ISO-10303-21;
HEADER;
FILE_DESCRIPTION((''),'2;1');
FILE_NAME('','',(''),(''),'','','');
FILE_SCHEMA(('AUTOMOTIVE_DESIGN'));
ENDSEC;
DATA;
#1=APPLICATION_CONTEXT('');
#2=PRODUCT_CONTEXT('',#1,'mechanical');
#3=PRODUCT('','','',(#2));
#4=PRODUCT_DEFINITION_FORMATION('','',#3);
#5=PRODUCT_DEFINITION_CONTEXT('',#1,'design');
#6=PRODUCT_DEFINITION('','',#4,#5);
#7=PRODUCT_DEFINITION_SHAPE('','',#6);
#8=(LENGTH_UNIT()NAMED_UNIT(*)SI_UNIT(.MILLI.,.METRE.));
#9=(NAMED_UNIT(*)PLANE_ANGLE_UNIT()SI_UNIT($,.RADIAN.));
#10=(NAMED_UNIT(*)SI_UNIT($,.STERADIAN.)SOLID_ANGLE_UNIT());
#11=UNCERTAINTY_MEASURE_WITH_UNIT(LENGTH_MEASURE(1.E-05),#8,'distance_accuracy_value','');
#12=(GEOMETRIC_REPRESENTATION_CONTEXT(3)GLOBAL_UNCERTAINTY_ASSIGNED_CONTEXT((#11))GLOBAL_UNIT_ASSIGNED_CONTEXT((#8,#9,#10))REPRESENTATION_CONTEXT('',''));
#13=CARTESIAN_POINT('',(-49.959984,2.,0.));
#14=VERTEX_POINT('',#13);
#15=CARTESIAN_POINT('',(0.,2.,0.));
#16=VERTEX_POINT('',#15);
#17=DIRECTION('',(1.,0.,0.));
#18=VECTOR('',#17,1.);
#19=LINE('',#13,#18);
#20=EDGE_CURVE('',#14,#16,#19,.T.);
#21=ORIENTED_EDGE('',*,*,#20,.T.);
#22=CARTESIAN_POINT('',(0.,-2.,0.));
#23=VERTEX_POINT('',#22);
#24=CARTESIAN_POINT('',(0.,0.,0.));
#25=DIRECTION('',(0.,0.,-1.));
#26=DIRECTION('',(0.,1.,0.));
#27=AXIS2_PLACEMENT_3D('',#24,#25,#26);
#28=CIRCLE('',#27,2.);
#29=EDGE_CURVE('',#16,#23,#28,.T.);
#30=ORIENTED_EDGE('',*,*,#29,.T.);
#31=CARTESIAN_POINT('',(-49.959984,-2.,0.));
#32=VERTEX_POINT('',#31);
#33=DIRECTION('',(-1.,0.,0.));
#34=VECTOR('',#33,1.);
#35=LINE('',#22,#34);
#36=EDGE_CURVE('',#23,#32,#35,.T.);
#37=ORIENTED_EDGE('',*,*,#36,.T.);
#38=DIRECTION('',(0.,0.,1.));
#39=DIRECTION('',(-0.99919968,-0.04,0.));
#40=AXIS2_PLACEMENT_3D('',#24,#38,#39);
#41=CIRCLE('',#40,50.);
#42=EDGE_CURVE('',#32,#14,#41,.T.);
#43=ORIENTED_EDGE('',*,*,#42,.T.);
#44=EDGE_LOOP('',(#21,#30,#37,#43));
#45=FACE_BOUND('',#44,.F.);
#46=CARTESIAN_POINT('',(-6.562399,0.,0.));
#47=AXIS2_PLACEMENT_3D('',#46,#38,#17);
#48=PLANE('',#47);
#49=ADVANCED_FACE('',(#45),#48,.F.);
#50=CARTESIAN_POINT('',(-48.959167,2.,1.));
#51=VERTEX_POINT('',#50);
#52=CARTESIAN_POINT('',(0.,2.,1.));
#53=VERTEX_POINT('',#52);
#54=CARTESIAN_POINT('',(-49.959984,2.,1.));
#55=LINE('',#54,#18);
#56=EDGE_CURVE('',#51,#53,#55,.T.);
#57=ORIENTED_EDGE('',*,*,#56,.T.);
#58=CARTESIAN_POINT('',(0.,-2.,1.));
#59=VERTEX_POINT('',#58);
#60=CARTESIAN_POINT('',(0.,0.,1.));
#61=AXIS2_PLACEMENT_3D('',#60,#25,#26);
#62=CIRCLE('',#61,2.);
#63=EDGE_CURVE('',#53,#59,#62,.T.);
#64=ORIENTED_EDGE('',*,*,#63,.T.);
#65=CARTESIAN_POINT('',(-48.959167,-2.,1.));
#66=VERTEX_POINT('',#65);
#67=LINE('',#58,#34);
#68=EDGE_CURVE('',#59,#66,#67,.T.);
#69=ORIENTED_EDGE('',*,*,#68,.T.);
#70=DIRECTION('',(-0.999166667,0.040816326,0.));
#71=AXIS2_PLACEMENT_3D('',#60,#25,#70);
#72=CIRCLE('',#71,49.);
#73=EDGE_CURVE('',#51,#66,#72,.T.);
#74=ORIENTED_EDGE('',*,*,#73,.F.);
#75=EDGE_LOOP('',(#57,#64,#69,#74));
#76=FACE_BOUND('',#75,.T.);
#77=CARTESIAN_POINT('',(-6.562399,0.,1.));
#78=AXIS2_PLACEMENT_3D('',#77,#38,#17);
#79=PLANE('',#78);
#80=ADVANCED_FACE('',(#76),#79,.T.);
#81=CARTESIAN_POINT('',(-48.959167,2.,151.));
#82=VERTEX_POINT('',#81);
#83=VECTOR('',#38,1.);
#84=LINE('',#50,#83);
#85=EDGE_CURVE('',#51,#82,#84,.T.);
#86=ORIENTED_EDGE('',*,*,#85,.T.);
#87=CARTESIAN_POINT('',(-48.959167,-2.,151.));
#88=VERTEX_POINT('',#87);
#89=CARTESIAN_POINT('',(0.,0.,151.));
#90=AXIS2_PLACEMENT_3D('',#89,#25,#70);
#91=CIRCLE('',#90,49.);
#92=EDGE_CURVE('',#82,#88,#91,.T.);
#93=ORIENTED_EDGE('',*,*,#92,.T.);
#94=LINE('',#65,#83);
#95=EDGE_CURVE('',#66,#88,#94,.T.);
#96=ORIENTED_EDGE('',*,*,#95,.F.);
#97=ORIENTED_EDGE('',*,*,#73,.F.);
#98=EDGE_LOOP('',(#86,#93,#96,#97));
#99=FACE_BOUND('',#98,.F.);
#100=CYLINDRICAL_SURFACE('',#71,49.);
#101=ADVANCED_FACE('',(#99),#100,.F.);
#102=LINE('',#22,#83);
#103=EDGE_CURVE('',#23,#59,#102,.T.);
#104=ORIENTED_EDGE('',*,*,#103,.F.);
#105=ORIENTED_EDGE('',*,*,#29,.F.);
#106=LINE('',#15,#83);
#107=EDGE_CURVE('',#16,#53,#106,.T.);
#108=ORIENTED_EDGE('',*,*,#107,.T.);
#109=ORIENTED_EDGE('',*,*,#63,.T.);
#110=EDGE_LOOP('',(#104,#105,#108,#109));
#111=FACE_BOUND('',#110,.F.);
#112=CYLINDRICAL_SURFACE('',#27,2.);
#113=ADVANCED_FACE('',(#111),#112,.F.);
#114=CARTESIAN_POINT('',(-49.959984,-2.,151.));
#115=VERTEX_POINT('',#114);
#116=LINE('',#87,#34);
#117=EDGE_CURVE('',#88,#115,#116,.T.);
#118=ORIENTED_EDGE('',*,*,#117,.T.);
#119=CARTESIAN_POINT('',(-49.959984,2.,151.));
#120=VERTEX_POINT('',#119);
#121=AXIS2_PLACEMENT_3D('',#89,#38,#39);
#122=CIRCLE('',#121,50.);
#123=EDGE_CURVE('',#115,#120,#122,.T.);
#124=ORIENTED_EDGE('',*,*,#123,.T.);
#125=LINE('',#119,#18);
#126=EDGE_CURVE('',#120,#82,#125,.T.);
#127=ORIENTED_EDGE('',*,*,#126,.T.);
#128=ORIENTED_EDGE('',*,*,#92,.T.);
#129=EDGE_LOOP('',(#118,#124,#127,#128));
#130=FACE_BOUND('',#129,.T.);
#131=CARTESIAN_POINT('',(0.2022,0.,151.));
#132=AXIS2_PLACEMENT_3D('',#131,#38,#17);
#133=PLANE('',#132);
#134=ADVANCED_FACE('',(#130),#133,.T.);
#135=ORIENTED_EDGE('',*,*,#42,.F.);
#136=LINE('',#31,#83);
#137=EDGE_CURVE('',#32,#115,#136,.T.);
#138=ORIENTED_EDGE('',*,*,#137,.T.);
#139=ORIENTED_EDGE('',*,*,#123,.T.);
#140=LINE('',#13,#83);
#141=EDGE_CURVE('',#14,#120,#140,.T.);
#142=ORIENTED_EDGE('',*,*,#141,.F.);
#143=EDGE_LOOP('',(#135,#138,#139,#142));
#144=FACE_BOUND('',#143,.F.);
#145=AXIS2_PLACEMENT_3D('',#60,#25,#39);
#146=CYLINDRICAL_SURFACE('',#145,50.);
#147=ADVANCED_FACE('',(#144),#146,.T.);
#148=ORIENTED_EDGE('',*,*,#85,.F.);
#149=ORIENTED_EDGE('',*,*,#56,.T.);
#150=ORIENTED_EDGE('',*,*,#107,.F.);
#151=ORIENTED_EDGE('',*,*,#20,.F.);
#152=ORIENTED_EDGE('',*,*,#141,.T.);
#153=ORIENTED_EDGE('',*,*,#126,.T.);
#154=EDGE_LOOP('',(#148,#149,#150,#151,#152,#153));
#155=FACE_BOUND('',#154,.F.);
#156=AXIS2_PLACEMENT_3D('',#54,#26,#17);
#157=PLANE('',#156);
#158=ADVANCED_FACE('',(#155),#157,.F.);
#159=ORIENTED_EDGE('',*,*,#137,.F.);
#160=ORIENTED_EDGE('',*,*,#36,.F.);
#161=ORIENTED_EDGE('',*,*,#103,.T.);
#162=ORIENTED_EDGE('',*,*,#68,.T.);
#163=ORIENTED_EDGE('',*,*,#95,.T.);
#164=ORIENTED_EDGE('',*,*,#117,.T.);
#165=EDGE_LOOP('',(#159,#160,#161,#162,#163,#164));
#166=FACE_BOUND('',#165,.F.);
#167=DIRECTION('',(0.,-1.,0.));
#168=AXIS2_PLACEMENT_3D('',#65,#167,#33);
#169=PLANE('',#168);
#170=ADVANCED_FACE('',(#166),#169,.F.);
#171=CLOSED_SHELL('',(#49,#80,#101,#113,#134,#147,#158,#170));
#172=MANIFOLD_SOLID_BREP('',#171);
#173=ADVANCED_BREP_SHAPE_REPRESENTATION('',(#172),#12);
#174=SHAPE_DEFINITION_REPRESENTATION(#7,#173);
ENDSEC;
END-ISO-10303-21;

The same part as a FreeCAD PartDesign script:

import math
import FreeCAD as App
import Part
import Sketcher
from FreeCAD import Vector
Q = App.Units.Quantity

doc = App.newDocument("Part")
params = doc.addObject("Spreadsheet::Sheet", "Params")
for row, (alias, value) in enumerate([
    ("sketch1_radius", "50 mm"),
    ("sketch1_radius2", "2 mm"),
    ("pad1_length", "1 mm"),
    ("sketch2_radius", "50 mm"),
    ("sketch2_radius2", "49 mm"),
    ("pad2_length", "150 mm"),
], start=1):
    params.set(f"A{row}", alias)
    params.set(f"B{row}", "=" + value)
    params.setAlias(f"B{row}", alias)

body = doc.addObject("PartDesign::Body", "Body")

# Sketch on XY plane
sketch1 = body.newObject("Sketcher::SketchObject", "Sketch")
sketch1.AttachmentSupport = (doc.getObject("XY_Plane"), [""])
sketch1.MapMode = "FlatFace"
sketch1.addGeometry([
    Part.LineSegment(Vector(0, -2, 0), Vector(-50, -2, 0)),
    Part.ArcOfCircle(Part.Circle(Vector(0, 0, 0), Vector(0, 0, 1), 50), math.radians(-178), math.radians(178)),
    Part.LineSegment(Vector(-50, 2, 0), Vector(0, 2, 0)),
    Part.ArcOfCircle(Part.Circle(Vector(0, 0, 0), Vector(0, 0, 1), 2), math.radians(-90), math.radians(90)),
], False)
sketch1.addConstraint([
    Sketcher.Constraint("Coincident", 0, 2, 1, 1),
    Sketcher.Constraint("Coincident", 1, 2, 2, 1),
    Sketcher.Constraint("Tangent", 2, 2, 3, 2),
    Sketcher.Constraint("Tangent", 3, 1, 0, 1),
    Sketcher.Constraint("Horizontal", 0),
    Sketcher.Constraint("Horizontal", 2),
    Sketcher.Constraint("Coincident", 1, 3, -1, 1),
    Sketcher.Constraint("Coincident", 3, 3, -1, 1),
    Sketcher.Constraint("Radius", 1, Q("50 mm")),
    Sketcher.Constraint("Radius", 3, Q("2 mm")),
])
sketch1.setExpression("Constraints[8]", "Params.sketch1_radius")
sketch1.setExpression("Constraints[9]", "Params.sketch1_radius2")
pad1 = body.newObject("PartDesign::Pad", "Pad")
pad1.Profile = sketch1
pad1.setExpression("Length", "Params.pad1_length")

# Sketch on XY plane
sketch2 = body.newObject("Sketcher::SketchObject", "Sketch001")
sketch2.AttachmentSupport = (doc.getObject("XY_Plane"), [""])
sketch2.MapMode = "FlatFace"
sketch2.AttachmentOffset = App.Placement(Vector(0, 0, 1), App.Rotation())
sketch2.addGeometry([
    Part.LineSegment(Vector(-49, -2, 0), Vector(-50, -2, 0)),
    Part.ArcOfCircle(Part.Circle(Vector(0, 0, 0), Vector(0, 0, 1), 50), math.radians(-178), math.radians(178)),
    Part.LineSegment(Vector(-50, 2, 0), Vector(-49, 2, 0)),
    Part.ArcOfCircle(Part.Circle(Vector(0, 0, 0), Vector(0, 0, 1), 49), math.radians(-178), math.radians(178)),
], False)
sketch2.addConstraint([
    Sketcher.Constraint("Coincident", 0, 2, 1, 1),
    Sketcher.Constraint("Coincident", 1, 2, 2, 1),
    Sketcher.Constraint("Coincident", 2, 2, 3, 2),
    Sketcher.Constraint("Coincident", 3, 1, 0, 1),
    Sketcher.Constraint("Horizontal", 0),
    Sketcher.Constraint("Horizontal", 2),
    Sketcher.Constraint("Coincident", 1, 3, -1, 1),
    Sketcher.Constraint("Coincident", 3, 3, -1, 1),
    Sketcher.Constraint("Vertical", 0, 2, 1, 2),
    Sketcher.Constraint("Radius", 1, Q("50 mm")),
    Sketcher.Constraint("Radius", 3, Q("49 mm")),
    Sketcher.Constraint("DistanceY", 0, 2, -1, 1, Q("2 mm")),
])
sketch2.setExpression("Constraints[9]", "Params.sketch2_radius")
sketch2.setExpression("Constraints[10]", "Params.sketch2_radius2")
pad2 = body.newObject("PartDesign::Pad", "Pad001")
pad2.Profile = sketch2
pad2.setExpression("Length", "Params.pad2_length")

doc.recompute()
